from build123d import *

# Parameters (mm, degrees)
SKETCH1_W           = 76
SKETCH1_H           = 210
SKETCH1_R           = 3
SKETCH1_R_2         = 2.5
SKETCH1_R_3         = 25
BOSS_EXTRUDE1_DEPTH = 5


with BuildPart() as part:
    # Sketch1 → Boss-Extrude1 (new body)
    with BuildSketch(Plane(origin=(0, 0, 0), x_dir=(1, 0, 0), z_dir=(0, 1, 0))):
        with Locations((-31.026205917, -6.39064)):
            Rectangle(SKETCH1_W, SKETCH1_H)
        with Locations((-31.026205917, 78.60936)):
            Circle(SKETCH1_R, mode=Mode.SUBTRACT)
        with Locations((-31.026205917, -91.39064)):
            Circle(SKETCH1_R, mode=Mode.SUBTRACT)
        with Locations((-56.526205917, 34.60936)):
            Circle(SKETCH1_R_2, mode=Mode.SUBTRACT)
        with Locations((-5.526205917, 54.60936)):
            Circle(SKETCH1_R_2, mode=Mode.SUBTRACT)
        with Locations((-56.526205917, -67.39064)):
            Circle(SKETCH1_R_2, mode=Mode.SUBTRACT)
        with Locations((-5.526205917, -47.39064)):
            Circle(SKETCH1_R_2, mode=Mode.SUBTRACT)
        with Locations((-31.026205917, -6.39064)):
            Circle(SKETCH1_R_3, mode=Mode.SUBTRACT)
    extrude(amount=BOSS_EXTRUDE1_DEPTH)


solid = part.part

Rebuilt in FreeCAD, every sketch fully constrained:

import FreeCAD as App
import Part
import Sketcher
Q = App.Units.Quantity


def add_polygon(sketch, points):
    """Adds a closed chain of lines whose ends are joined by coincident constraints."""
    first, n = sketch.GeometryCount, len(points)
    for a, b in zip(points, points[1:] + points[:1]):
        sketch.addGeometry(Part.LineSegment(App.Vector(*a, 0), App.Vector(*b, 0)), False)
    for i in range(n):
        sketch.addConstraint(Sketcher.Constraint("Coincident", first + i, 2, first + (i + 1) % n, 1))

doc = App.newDocument("Part")
body = doc.addObject("PartDesign::Body", "Body")

# Sketch on XZ plane
sketch1 = body.newObject("Sketcher::SketchObject", "Sketch")
sketch1.AttachmentSupport = (doc.getObject("XZ_Plane"), [""])
sketch1.MapMode = "FlatFace"
add_polygon(sketch1, [(-69, -98.6), (-69, 111.4), (7, 111.4), (7, -98.6)])  # lines 0-3
sketch1.addGeometry(Part.Circle(App.Vector(-56.5, 67.4, 0), App.Vector(0, 0, 1), 2.5), False)  # 4
sketch1.addGeometry(Part.Circle(App.Vector(-31, 91.4, 0), App.Vector(0, 0, 1), 3), False)  # 5
sketch1.addGeometry(Part.Circle(App.Vector(-5.5, 47.4, 0), App.Vector(0, 0, 1), 2.5), False)  # 6
sketch1.addGeometry(Part.Circle(App.Vector(-56.5, -34.6, 0), App.Vector(0, 0, 1), 2.5), False)  # 7
sketch1.addGeometry(Part.Circle(App.Vector(-31, 6.4, 0), App.Vector(0, 0, 1), 25), False)  # 8
sketch1.addGeometry(Part.Circle(App.Vector(-31, -78.6, 0), App.Vector(0, 0, 1), 3), False)  # 9
sketch1.addGeometry(Part.Circle(App.Vector(-5.5, -54.6, 0), App.Vector(0, 0, 1), 2.5), False)  # 10
sketch1.addConstraint([
    Sketcher.Constraint("Vertical", 0),
    Sketcher.Constraint("Horizontal", 1),
    Sketcher.Constraint("Vertical", 2),
    Sketcher.Constraint("Horizontal", 3),
    Sketcher.Constraint("Equal", 4, 6),
    Sketcher.Constraint("Equal", 6, 7),
    Sketcher.Constraint("Equal", 5, 9),
    Sketcher.Constraint("Equal", 7, 10),
    Sketcher.Constraint("Vertical", 4, 3, 7, 3),
    Sketcher.Constraint("Vertical", 5, 3, 8, 3),
    Sketcher.Constraint("Vertical", 8, 3, 9, 3),
    Sketcher.Constraint("Vertical", 6, 3, 10, 3),
    Sketcher.Constraint("Diameter", 4, Q("5 mm")),
    Sketcher.Constraint("Diameter", 5, Q("6 mm")),
    Sketcher.Constraint("Diameter", 8, Q("50 mm")),
    Sketcher.Constraint("DistanceX", 1, 1, 1, 2, Q("76 mm")),
    Sketcher.Constraint("DistanceY", 0, 1, 0, 2, Q("210 mm")),
    Sketcher.Constraint("DistanceY", 4, 3, 5, 3, Q("24 mm")),
    Sketcher.Constraint("DistanceY", 6, 3, 5, 3, Q("44 mm")),
    Sketcher.Constraint("DistanceX", 4, 3, 6, 3, Q("51 mm")),
    Sketcher.Constraint("DistanceY", 7, 3, 6, 3, Q("82 mm")),
    Sketcher.Constraint("DistanceY", 8, 3, 6, 3, Q("41 mm")),
    Sketcher.Constraint("DistanceY", 9, 3, 7, 3, Q("44 mm")),
    Sketcher.Constraint("DistanceY", 9, 3, 10, 3, Q("24 mm")),
    Sketcher.Constraint("DistanceX", 0, 2, 5, 3, Q("38 mm")),
    Sketcher.Constraint("DistanceY", 5, 3, 0, 2, Q("20 mm")),
    Sketcher.Constraint("DistanceX", 4, 3, 5, 3, Q("25.5 mm")),
    Sketcher.Constraint("DistanceY", -1, 1, 4, 3, Q("67.39064 mm")),
    Sketcher.Constraint("DistanceX", 4, 3, -1, 1, Q("56.526206 mm")),
])
pad1 = body.newObject("PartDesign::Pad", "Pad")
pad1.Profile = sketch1
pad1.Length = 5
pad1.Reversed = True

doc.recompute()
